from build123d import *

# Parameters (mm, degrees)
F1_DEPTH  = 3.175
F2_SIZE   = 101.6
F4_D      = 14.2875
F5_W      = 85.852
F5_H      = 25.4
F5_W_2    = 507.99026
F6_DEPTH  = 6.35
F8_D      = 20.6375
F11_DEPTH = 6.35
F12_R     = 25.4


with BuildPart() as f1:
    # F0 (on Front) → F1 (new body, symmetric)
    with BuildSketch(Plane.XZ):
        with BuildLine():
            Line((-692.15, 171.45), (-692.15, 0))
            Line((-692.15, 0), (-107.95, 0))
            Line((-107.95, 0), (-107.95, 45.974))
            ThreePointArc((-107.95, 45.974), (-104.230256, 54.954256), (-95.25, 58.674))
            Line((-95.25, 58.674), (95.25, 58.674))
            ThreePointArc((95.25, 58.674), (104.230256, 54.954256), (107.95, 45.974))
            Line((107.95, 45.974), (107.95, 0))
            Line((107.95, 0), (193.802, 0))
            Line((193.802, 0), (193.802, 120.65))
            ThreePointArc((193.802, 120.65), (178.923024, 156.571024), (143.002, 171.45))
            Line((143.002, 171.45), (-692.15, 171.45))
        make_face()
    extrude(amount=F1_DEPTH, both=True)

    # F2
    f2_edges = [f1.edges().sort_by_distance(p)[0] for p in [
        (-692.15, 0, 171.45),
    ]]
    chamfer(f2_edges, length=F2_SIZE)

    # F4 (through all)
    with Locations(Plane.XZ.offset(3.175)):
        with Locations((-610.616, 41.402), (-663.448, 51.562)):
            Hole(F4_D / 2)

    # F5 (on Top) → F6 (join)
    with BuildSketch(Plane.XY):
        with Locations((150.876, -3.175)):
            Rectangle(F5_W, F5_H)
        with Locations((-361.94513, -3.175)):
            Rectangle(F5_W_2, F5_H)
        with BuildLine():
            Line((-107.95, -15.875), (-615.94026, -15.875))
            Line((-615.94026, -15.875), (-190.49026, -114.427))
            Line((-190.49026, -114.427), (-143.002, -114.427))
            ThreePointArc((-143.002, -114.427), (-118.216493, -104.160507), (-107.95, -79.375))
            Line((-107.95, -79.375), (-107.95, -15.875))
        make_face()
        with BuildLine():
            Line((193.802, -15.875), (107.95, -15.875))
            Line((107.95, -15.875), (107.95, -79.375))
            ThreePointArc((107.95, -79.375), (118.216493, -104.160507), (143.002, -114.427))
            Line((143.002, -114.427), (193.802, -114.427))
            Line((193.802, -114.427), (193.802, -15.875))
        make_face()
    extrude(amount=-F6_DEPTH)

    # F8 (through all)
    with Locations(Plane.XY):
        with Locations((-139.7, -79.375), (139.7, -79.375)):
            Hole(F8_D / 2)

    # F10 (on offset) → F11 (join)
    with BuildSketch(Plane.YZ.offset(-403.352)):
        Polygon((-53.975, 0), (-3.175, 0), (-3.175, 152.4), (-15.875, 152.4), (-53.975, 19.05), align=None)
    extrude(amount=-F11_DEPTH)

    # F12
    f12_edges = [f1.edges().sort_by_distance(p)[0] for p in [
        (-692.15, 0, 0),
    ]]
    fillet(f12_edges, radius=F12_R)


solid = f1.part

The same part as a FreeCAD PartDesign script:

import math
import FreeCAD as App
import Part
import Sketcher
Q = App.Units.Quantity


def edges_at(feature, points):
    """Names of the edges that pass closest to the given points."""
    edges = feature.Shape.Edges
    near = lambda p: min(range(len(edges)), key=lambda i: edges[i].distToShape(Part.Vertex(*p))[0])
    return sorted({f"Edge{near(p) + 1}" for p in points})


def add_polygon(sketch, points):
    """Adds a closed chain of lines whose ends are joined by coincident constraints."""
    first, n = sketch.GeometryCount, len(points)
    for a, b in zip(points, points[1:] + points[:1]):
        sketch.addGeometry(Part.LineSegment(App.Vector(*a, 0), App.Vector(*b, 0)), False)
    for i in range(n):
        sketch.addConstraint(Sketcher.Constraint("Coincident", first + i, 2, first + (i + 1) % n, 1))

doc = App.newDocument("Part")
body = doc.addObject("PartDesign::Body", "Body")

sketch1 = doc.addObject("Sketcher::SketchObject", "Sketch")
body.addObject(sketch1)
sketch1.AttachmentSupport = (doc.XZ_Plane, [""])
sketch1.MapMode = "FlatFace"
sketch1.addGeometry(Part.LineSegment(App.Vector(-692, 171, 0), App.Vector(-692, 0, 0)), False)
sketch1.addGeometry(Part.LineSegment(App.Vector(-692, 0, 0), App.Vector(-108, 0, 0)), False)
sketch1.addGeometry(Part.LineSegment(App.Vector(-108, 0, 0), App.Vector(-108, 46, 0)), False)
sketch1.addGeometry(Part.ArcOfCircle(Part.Circle(App.Vector(-95, 46, 0), App.Vector(0, 0, 1), 13), math.radians(90), math.radians(180)), False)
sketch1.addGeometry(Part.LineSegment(App.Vector(-95, 59, 0), App.Vector(95, 59, 0)), False)
sketch1.addGeometry(Part.ArcOfCircle(Part.Circle(App.Vector(95, 46, 0), App.Vector(0, 0, 1), 13), math.radians(0), math.radians(90)), False)
sketch1.addGeometry(Part.LineSegment(App.Vector(108, 46, 0), App.Vector(108, 0, 0)), False)
sketch1.addGeometry(Part.LineSegment(App.Vector(108, 0, 0), App.Vector(194, 0, 0)), False)
sketch1.addGeometry(Part.LineSegment(App.Vector(194, 0, 0), App.Vector(194, 121, 0)), False)
sketch1.addGeometry(Part.ArcOfCircle(Part.Circle(App.Vector(143, 121, 0), App.Vector(0, 0, 1), 51), math.radians(0), math.radians(90)), False)
sketch1.addGeometry(Part.LineSegment(App.Vector(143, 171, 0), App.Vector(-692, 171, 0)), False)
sketch1.addConstraint(Sketcher.Constraint("Coincident", 0, 2, 1, 1))
sketch1.addConstraint(Sketcher.Constraint("Coincident", 1, 2, 2, 1))
sketch1.addConstraint(Sketcher.Constraint("Tangent", 2, 2, 3, 2))
sketch1.addConstraint(Sketcher.Constraint("Tangent", 3, 1, 4, 1))
sketch1.addConstraint(Sketcher.Constraint("Tangent", 4, 2, 5, 2))
sketch1.addConstraint(Sketcher.Constraint("Tangent", 5, 1, 6, 1))
sketch1.addConstraint(Sketcher.Constraint("Coincident", 6, 2, 7, 1))
sketch1.addConstraint(Sketcher.Constraint("Coincident", 7, 2, 8, 1))
sketch1.addConstraint(Sketcher.Constraint("Tangent", 8, 2, 9, 1))
sketch1.addConstraint(Sketcher.Constraint("Tangent", 9, 2, 10, 1))
sketch1.addConstraint(Sketcher.Constraint("Coincident", 10, 2, 0, 1))
sketch1.addConstraint(Sketcher.Constraint("Vertical", 0))
sketch1.addConstraint(Sketcher.Constraint("Horizontal", 1))
sketch1.addConstraint(Sketcher.Constraint("Vertical", 2))
sketch1.addConstraint(Sketcher.Constraint("Horizontal", 4))
sketch1.addConstraint(Sketcher.Constraint("Vertical", 6))
sketch1.addConstraint(Sketcher.Constraint("Horizontal", 7))
sketch1.addConstraint(Sketcher.Constraint("Vertical", 8))
sketch1.addConstraint(Sketcher.Constraint("Horizontal", 10))
sketch1.addConstraint(Sketcher.Constraint("Equal", 3, 5))
sketch1.addConstraint(Sketcher.Constraint("Symmetric", 1, 2, 6, 2, -1, 1))
sketch1.addConstraint(Sketcher.Constraint("PointOnObject", 0, 2, -1))
sketch1.addConstraint(Sketcher.Constraint("Radius", 9, Q("2.0000001 in")))
sketch1.addConstraint(Sketcher.Constraint("Radius", 3, Q("0.5 in")))
sketch1.addConstraint(Sketcher.Constraint("DistanceX", 1, 1, 1, 2, Q("23 in")))
sketch1.addConstraint(Sketcher.Constraint("DistanceX", 4, 1, 4, 2, Q("7.5 in")))
sketch1.addConstraint(Sketcher.Constraint("DistanceX", 7, 1, 7, 2, Q("3.38 in")))
sketch1.addConstraint(Sketcher.Constraint("DistanceY", 0, 2, 0, 1, Q("6.75 in")))
sketch1.addConstraint(Sketcher.Constraint("DistanceY", 2, 1, 2, 2, Q("1.81 in")))
pad1 = doc.addObject("PartDesign::Pad", "Pad")
body.addObject(pad1)
pad1.Profile = sketch1
pad1.Length = Q("0.25 in")
pad1.Midplane = True
doc.recompute()

chamfer = doc.addObject("PartDesign::Chamfer", "Chamfer")
body.addObject(chamfer)
chamfer.Base = (pad1, edges_at(pad1, [(-692.15, 0, 171.45)]))
chamfer.Size = Q("4 in")

sketch2 = doc.addObject("Sketcher::SketchObject", "Sketch001")
body.addObject(sketch2)
sketch2.AttachmentSupport = (doc.XZ_Plane, [""])
sketch2.MapMode = "FlatFace"
sketch2.AttachmentOffset = App.Placement(App.Vector(0, 0, 0.125 * 25.4), App.Rotation())
sketch2.addGeometry(Part.Circle(App.Vector(-611, 41, 0), App.Vector(0, 0, 1), 7), False)
sketch2.addGeometry(Part.Circle(App.Vector(-663, 52, 0), App.Vector(0, 0, 1), 7), False)
sketch2.addConstraint(Sketcher.Constraint("Equal", 0, 1))
sketch2.addConstraint(Sketcher.Constraint("Diameter", 0, Q("0.5625 in")))
sketch2.addConstraint(Sketcher.Constraint("DistanceY", 0, 3, 1, 3, Q("0.4 in")))
sketch2.addConstraint(Sketcher.Constraint("DistanceX", 0, 3, -1, 1, Q("24.04 in")))
sketch2.addConstraint(Sketcher.Constraint("DistanceY", -1, 1, 0, 3, Q("1.63 in")))
sketch2.addConstraint(Sketcher.Constraint("DistanceX", 1, 3, -1, 1, Q("26.12 in")))
doc.recompute()
hole = doc.addObject("PartDesign::Hole", "Hole")
body.addObject(hole)
hole.Profile = sketch2
hole.ThreadType = "None"
hole.Diameter = Q("0.5625 in")
hole.DepthType = "ThroughAll"

sketch3 = doc.addObject("Sketcher::SketchObject", "Sketch002")
body.addObject(sketch3)
sketch3.AttachmentSupport = (doc.XY_Plane, [""])
sketch3.MapMode = "FlatFace"
sketch3.addGeometry(Part.LineSegment(App.Vector(108, 10, 0), App.Vector(108, -79, 0)), False)
sketch3.addGeometry(Part.ArcOfCircle(Part.Circle(App.Vector(143, -79, 0), App.Vector(0, 0, 1), 35), math.radians(180), math.radians(270)), False)
sketch3.addGeometry(Part.LineSegment(App.Vector(143, -114, 0), App.Vector(194, -114, 0)), False)
sketch3.addGeometry(Part.LineSegment(App.Vector(194, -114, 0), App.Vector(194, 10, 0)), False)
sketch3.addGeometry(Part.LineSegment(App.Vector(194, 10, 0), App.Vector(108, 10, 0)), False)
sketch3.addGeometry(Part.LineSegment(App.Vector(-616, 10, 0), App.Vector(-616, -16, 0)), False)
sketch3.addGeometry(Part.LineSegment(App.Vector(-616, -16, 0), App.Vector(-190, -114, 0)), False)
sketch3.addGeometry(Part.LineSegment(App.Vector(-190, -114, 0), App.Vector(-143, -114, 0)), False)
sketch3.addGeometry(Part.ArcOfCircle(Part.Circle(App.Vector(-143, -79, 0), App.Vector(0, 0, 1), 35), math.radians(-90), math.radians(0)), False)
sketch3.addGeometry(Part.LineSegment(App.Vector(-108, -79, 0), App.Vector(-108, 10, 0)), False)
sketch3.addGeometry(Part.LineSegment(App.Vector(-108, 10, 0), App.Vector(-616, 10, 0)), False)
sketch3.addConstraint(Sketcher.Constraint("Tangent", 0, 2, 1, 1))
sketch3.addConstraint(Sketcher.Constraint("Tangent", 1, 2, 2, 1))
sketch3.addConstraint(Sketcher.Constraint("Coincident", 2, 2, 3, 1))
sketch3.addConstraint(Sketcher.Constraint("Coincident", 3, 2, 4, 1))
sketch3.addConstraint(Sketcher.Constraint("Coincident", 4, 2, 0, 1))
sketch3.addConstraint(Sketcher.Constraint("Coincident", 5, 2, 6, 1))
sketch3.addConstraint(Sketcher.Constraint("Coincident", 6, 2, 7, 1))
sketch3.addConstraint(Sketcher.Constraint("Tangent", 7, 2, 8, 1))
sketch3.addConstraint(Sketcher.Constraint("Tangent", 8, 2, 9, 1))
sketch3.addConstraint(Sketcher.Constraint("Coincident", 9, 2, 10, 1))
sketch3.addConstraint(Sketcher.Constraint("Coincident", 10, 2, 5, 1))
sketch3.addConstraint(Sketcher.Constraint("Vertical", 0))
sketch3.addConstraint(Sketcher.Constraint("Horizontal", 2))
sketch3.addConstraint(Sketcher.Constraint("Vertical", 3))
sketch3.addConstraint(Sketcher.Constraint("Horizontal", 4))
sketch3.addConstraint(Sketcher.Constraint("Vertical", 5))
sketch3.addConstraint(Sketcher.Constraint("Horizontal", 7))
sketch3.addConstraint(Sketcher.Constraint("Vertical", 9))
sketch3.addConstraint(Sketcher.Constraint("Horizontal", 10))
sketch3.addConstraint(Sketcher.Constraint("Equal", 1, 8))
sketch3.addConstraint(Sketcher.Constraint("Symmetric", 1, 3, 8, 3, -2))
sketch3.addConstraint(Sketcher.Constraint("Horizontal", 4, 2, 9, 2))
sketch3.addConstraint(Sketcher.Constraint("DistanceX", 2, 1, 2, 2, Q("2 in")))
sketch3.addConstraint(Sketcher.Constraint("DistanceY", 5, 2, 5, 1, Q("1 in")))
sketch3.addConstraint(Sketcher.Constraint("Radius", 1, Q("1.38 in")))
sketch3.addConstraint(Sketcher.Constraint("DistanceY", 0, 2, 0, 1, Q("3.5 in")))
sketch3.addConstraint(Sketcher.Constraint("DistanceX", 8, 2, 0, 2, Q("8.5 in")))
sketch3.addConstraint(Sketcher.Constraint("DistanceX", 10, 2, 6, 2, Q("16.75 in")))
sketch3.addConstraint(Sketcher.Constraint("DistanceY", 1, 3, -1, 1, Q("3.125 in")))
sketch3.addConstraint(Sketcher.Constraint("DistanceX", 7, 1, 7, 2, 47.48826))
pad2 = doc.addObject("PartDesign::Pad", "Pad001")
body.addObject(pad2)
pad2.Profile = sketch3
pad2.Length = Q("0.25 in")
pad2.Reversed = True

sketch4 = doc.addObject("Sketcher::SketchObject", "Sketch003")
body.addObject(sketch4)
sketch4.AttachmentSupport = (doc.XY_Plane, [""])
sketch4.MapMode = "FlatFace"
sketch4.addGeometry(Part.Circle(App.Vector(-140, -79, 0), App.Vector(0, 0, 1), 10), False)
sketch4.addGeometry(Part.Circle(App.Vector(140, -79, 0), App.Vector(0, 0, 1), 10), False)
sketch4.addConstraint(Sketcher.Constraint("Equal", 0, 1))
sketch4.addConstraint(Sketcher.Constraint("Symmetric", 0, 3, 1, 3, -2))
sketch4.addConstraint(Sketcher.Constraint("Diameter", 0, Q("0.8125 in")))
sketch4.addConstraint(Sketcher.Constraint("DistanceX", 0, 3, 1, 3, Q("11 in")))
sketch4.addConstraint(Sketcher.Constraint("DistanceY", 0, 3, -1, 1, Q("3.125 in")))
doc.recompute()
hole2 = doc.addObject("PartDesign::Hole", "Hole001")
body.addObject(hole2)
hole2.Profile = sketch4
hole2.ThreadType = "None"
hole2.Diameter = Q("0.8125 in")
hole2.DepthType = "ThroughAll"

sketch5 = doc.addObject("Sketcher::SketchObject", "Sketch004")
body.addObject(sketch5)
sketch5.AttachmentSupport = (doc.YZ_Plane, [""])
sketch5.MapMode = "FlatFace"
sketch5.AttachmentOffset = App.Placement(App.Vector(0, 0, -15.88 * 25.4), App.Rotation())
add_polygon(sketch5, [(-54, 0), (-3, 0), (-3, 152), (-16, 152), (-54, 19)])
sketch5.addConstraint(Sketcher.Constraint("Horizontal", 0))
sketch5.addConstraint(Sketcher.Constraint("Vertical", 1))
sketch5.addConstraint(Sketcher.Constraint("Horizontal", 2))
sketch5.addConstraint(Sketcher.Constraint("Vertical", 4))
sketch5.addConstraint(Sketcher.Constraint("PointOnObject", 0, 2, -1))
sketch5.addConstraint(Sketcher.Constraint("DistanceX", 0, 1, 0, 2, Q("2 in")))
sketch5.addConstraint(Sketcher.Constraint("DistanceY", 1, 1, 1, 2, Q("6 in")))
sketch5.addConstraint(Sketcher.Constraint("DistanceX", 2, 2, 2, 1, Q("0.5 in")))
sketch5.addConstraint(Sketcher.Constraint("DistanceY", 4, 2, 4, 1, Q("0.75 in")))
sketch5.addConstraint(Sketcher.Constraint("DistanceX", 0, 2, -1, 1, Q("0.125 in")))
pad3 = doc.addObject("PartDesign::Pad", "Pad002")
body.addObject(pad3)
pad3.Profile = sketch5
pad3.Length = Q("0.25 in")
pad3.Reversed = True
doc.recompute()

fillet = doc.addObject("PartDesign::Fillet", "Fillet")
body.addObject(fillet)
fillet.Base = (pad3, edges_at(pad3, [(-692.15, 0, 0)]))
fillet.Radius = Q("1 in")

doc.recompute()
